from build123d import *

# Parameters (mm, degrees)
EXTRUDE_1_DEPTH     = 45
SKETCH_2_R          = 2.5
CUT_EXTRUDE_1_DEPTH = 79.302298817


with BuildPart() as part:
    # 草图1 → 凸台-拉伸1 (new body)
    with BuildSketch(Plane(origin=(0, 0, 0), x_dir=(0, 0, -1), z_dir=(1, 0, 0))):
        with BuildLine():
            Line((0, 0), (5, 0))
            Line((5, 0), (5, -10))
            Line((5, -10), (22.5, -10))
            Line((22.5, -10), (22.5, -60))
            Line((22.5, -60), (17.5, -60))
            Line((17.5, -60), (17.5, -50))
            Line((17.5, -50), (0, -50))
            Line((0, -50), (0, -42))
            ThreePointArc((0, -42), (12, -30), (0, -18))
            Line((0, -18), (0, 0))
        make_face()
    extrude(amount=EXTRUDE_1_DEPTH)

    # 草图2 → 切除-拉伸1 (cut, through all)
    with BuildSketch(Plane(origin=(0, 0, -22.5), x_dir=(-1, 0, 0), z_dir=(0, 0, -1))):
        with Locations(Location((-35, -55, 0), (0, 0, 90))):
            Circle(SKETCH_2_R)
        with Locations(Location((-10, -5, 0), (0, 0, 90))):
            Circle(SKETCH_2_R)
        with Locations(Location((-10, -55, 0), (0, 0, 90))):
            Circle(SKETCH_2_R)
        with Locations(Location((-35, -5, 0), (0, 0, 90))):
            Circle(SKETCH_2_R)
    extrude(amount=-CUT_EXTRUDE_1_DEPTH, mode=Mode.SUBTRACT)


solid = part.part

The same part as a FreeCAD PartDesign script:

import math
import FreeCAD as App
import Part
import Sketcher

doc = App.newDocument("Part")
params = doc.addObject("Spreadsheet::Sheet", "Params")
for row, (alias, value) in enumerate([
    ("sketch1_radius", "12 mm"),
    ("sketch1_width", "18 mm"),
    ("sketch1_width2", "8 mm"),
    ("sketch1_width3", "10 mm"),
    ("sketch1_height", "5 mm"),
    ("pad1_length", "45 mm"),
    ("sketch2_diameter", "5 mm"),
], start=1):
    params.set(f"A{row}", alias)
    params.set(f"B{row}", "=" + value)
    params.setAlias(f"B{row}", alias)

body = doc.addObject("PartDesign::Body", "Body")

sketch1 = body.newObject("Sketcher::SketchObject", "Sketch")
sketch1.AttachmentSupport = (doc.getObject("YZ_Plane"), [""])
sketch1.MapMode = "FlatFace"
sketch1.addGeometry(Part.LineSegment(App.Vector(0, -5, 0), App.Vector(0, 0, 0)), False)
sketch1.addGeometry(Part.LineSegment(App.Vector(0, 0, 0), App.Vector(-18, 0, 0)), False)
sketch1.addGeometry(Part.ArcOfCircle(Part.Circle(App.Vector(-30, 0, 0), App.Vector(0, 0, 1), 12), math.radians(180), math.radians(360)), False)
sketch1.addGeometry(Part.LineSegment(App.Vector(-42, 0, 0), App.Vector(-50, 0, 0)), False)
sketch1.addGeometry(Part.LineSegment(App.Vector(-50, 0, 0), App.Vector(-50, -17.5, 0)), False)
sketch1.addGeometry(Part.LineSegment(App.Vector(-50, -17.5, 0), App.Vector(-60, -17.5, 0)), False)
sketch1.addGeometry(Part.LineSegment(App.Vector(-60, -17.5, 0), App.Vector(-60, -22.5, 0)), False)
sketch1.addGeometry(Part.LineSegment(App.Vector(-60, -22.5, 0), App.Vector(-10, -22.5, 0)), False)
sketch1.addGeometry(Part.LineSegment(App.Vector(-10, -22.5, 0), App.Vector(-10, -5, 0)), False)
sketch1.addGeometry(Part.LineSegment(App.Vector(-10, -5, 0), App.Vector(0, -5, 0)), False)
sketch1.addConstraint(Sketcher.Constraint("Coincident", 0, 2, 1, 1))
sketch1.addConstraint(Sketcher.Constraint("Coincident", 1, 2, 2, 2))
sketch1.addConstraint(Sketcher.Constraint("Coincident", 2, 1, 3, 1))
sketch1.addConstraint(Sketcher.Constraint("Coincident", 3, 2, 4, 1))
sketch1.addConstraint(Sketcher.Constraint("Coincident", 4, 2, 5, 1))
sketch1.addConstraint(Sketcher.Constraint("Coincident", 5, 2, 6, 1))
sketch1.addConstraint(Sketcher.Constraint("Coincident", 6, 2, 7, 1))
sketch1.addConstraint(Sketcher.Constraint("Coincident", 7, 2, 8, 1))
sketch1.addConstraint(Sketcher.Constraint("Coincident", 8, 2, 9, 1))
sketch1.addConstraint(Sketcher.Constraint("Coincident", 9, 2, 0, 1))
sketch1.addConstraint(Sketcher.Constraint("Vertical", 0))
sketch1.addConstraint(Sketcher.Constraint("Horizontal", 1))
sketch1.addConstraint(Sketcher.Constraint("Horizontal", 3))
sketch1.addConstraint(Sketcher.Constraint("Vertical", 4))
sketch1.addConstraint(Sketcher.Constraint("Horizontal", 5))
sketch1.addConstraint(Sketcher.Constraint("Vertical", 6))
sketch1.addConstraint(Sketcher.Constraint("Horizontal", 7))
sketch1.addConstraint(Sketcher.Constraint("Vertical", 8))
sketch1.addConstraint(Sketcher.Constraint("Horizontal", 9))
sketch1.addConstraint(Sketcher.Constraint("Coincident", 0, 2, -1, 1))
sketch1.addConstraint(Sketcher.Constraint("PointOnObject", 2, 3, -1))
sketch1.addConstraint(Sketcher.Constraint("PointOnObject", 2, 1, -1))
sketch1.addConstraint(Sketcher.Constraint("Equal", 5, 9))
sketch1.addConstraint(Sketcher.Constraint("Equal", 0, 6))
sketch1.addConstraint(Sketcher.Constraint("Radius", 2, 12.0))
sketch1.addConstraint(Sketcher.Constraint("DistanceX", 1, 2, 1, 1, 18.0))
sketch1.addConstraint(Sketcher.Constraint("DistanceX", 3, 2, 3, 1, 8.0))
sketch1.addConstraint(Sketcher.Constraint("DistanceX", 5, 2, 5, 1, 10.0))
sketch1.addConstraint(Sketcher.Constraint("DistanceY", 0, 1, 0, 2, 5.0))
sketch1.addConstraint(Sketcher.Constraint("DistanceY", 4, 2, 4, 1, 17.5))
sketch1.setExpression("Constraints[24]", "Params.sketch1_radius")
sketch1.setExpression("Constraints[25]", "Params.sketch1_width")
sketch1.setExpression("Constraints[26]", "Params.sketch1_width2")
sketch1.setExpression("Constraints[27]", "Params.sketch1_width3")
sketch1.setExpression("Constraints[28]", "Params.sketch1_height")
pad1 = body.newObject("PartDesign::Pad", "Pad")
pad1.Profile = sketch1
pad1.setExpression("Length", "Params.pad1_length")

sketch2 = body.newObject("Sketcher::SketchObject", "Sketch001")
sketch2.AttachmentSupport = (doc.getObject("XY_Plane"), [""])
sketch2.MapMode = "FlatFace"
sketch2.AttachmentOffset = App.Placement(App.Vector(0, 0, -22.5), App.Rotation())
sketch2.addGeometry(Part.Circle(App.Vector(35, -55, 0), App.Vector(0, 0, 1), 2.5), False)
sketch2.addGeometry(Part.Circle(App.Vector(10, -5, 0), App.Vector(0, 0, 1), 2.5), False)
sketch2.addGeometry(Part.Circle(App.Vector(10, -55, 0), App.Vector(0, 0, 1), 2.5), False)
sketch2.addGeometry(Part.Circle(App.Vector(35, -5, 0), App.Vector(0, 0, 1), 2.5), False)
sketch2.addConstraint(Sketcher.Constraint("Equal", 0, 1))
sketch2.addConstraint(Sketcher.Constraint("Equal", 1, 2))
sketch2.addConstraint(Sketcher.Constraint("Equal", 2, 3))
sketch2.addConstraint(Sketcher.Constraint("Horizontal", 0, 3, 2, 3))
sketch2.addConstraint(Sketcher.Constraint("Horizontal", 1, 3, 3, 3))
sketch2.addConstraint(Sketcher.Constraint("Vertical", 1, 3, 2, 3))
sketch2.addConstraint(Sketcher.Constraint("Vertical", 0, 3, 3, 3))
sketch2.addConstraint(Sketcher.Constraint("Diameter", 0, 5.0))
sketch2.addConstraint(Sketcher.Constraint("DistanceX", -1, 1, 0, 3, 35.0))
sketch2.addConstraint(Sketcher.Constraint("DistanceY", 0, 3, -1, 1, 55.0))
sketch2.addConstraint(Sketcher.Constraint("DistanceX", -1, 1, 1, 3, 10.0))
sketch2.addConstraint(Sketcher.Constraint("DistanceY", 1, 3, -1, 1, 5.0))
sketch2.setExpression("Constraints[7]", "Params.sketch2_diameter")
pocket1 = body.newObject("PartDesign::Pocket", "Pocket")
pocket1.Profile = sketch2
pocket1.Type = "ThroughAll"
pocket1.Reversed = True

doc.recompute()
